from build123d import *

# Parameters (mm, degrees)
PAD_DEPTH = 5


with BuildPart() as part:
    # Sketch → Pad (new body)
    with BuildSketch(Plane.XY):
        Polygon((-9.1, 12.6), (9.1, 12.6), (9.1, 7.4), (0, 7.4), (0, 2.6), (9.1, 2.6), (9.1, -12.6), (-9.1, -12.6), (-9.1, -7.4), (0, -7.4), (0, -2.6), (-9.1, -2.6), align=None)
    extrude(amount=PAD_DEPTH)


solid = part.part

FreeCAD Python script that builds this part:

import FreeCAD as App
import Part
import Sketcher


def add_polygon(sketch, points):
    """Adds a closed chain of lines whose ends are joined by coincident constraints."""
    first, n = sketch.GeometryCount, len(points)
    for a, b in zip(points, points[1:] + points[:1]):
        sketch.addGeometry(Part.LineSegment(App.Vector(*a, 0), App.Vector(*b, 0)), False)
    for i in range(n):
        sketch.addConstraint(Sketcher.Constraint("Coincident", first + i, 2, first + (i + 1) % n, 1))

doc = App.newDocument("Part")
body = doc.addObject("PartDesign::Body", "Body")

sketch1 = body.newObject("Sketcher::SketchObject", "Sketch")
sketch1.AttachmentSupport = (doc.getObject("XY_Plane"), [""])
sketch1.MapMode = "FlatFace"
add_polygon(sketch1, [(9.1, 12.6), (-9.1, 12.6), (-9.1, -2.6), (0, -2.6), (0, -7.4), (-9.1, -7.4), (-9.1, -12.6), (9.1, -12.6), (9.1, 2.6), (0, 2.6), (0, 7.4), (9.1, 7.4)])
sketch1.addConstraint(Sketcher.Constraint("Horizontal", 0))
sketch1.addConstraint(Sketcher.Constraint("Vertical", 1))
sketch1.addConstraint(Sketcher.Constraint("Horizontal", 2))
sketch1.addConstraint(Sketcher.Constraint("Vertical", 3))
sketch1.addConstraint(Sketcher.Constraint("Horizontal", 4))
sketch1.addConstraint(Sketcher.Constraint("Vertical", 5))
sketch1.addConstraint(Sketcher.Constraint("Horizontal", 6))
sketch1.addConstraint(Sketcher.Constraint("Vertical", 7))
sketch1.addConstraint(Sketcher.Constraint("Horizontal", 8))
sketch1.addConstraint(Sketcher.Constraint("Vertical", 9))
sketch1.addConstraint(Sketcher.Constraint("Horizontal", 10))
sketch1.addConstraint(Sketcher.Constraint("Vertical", 11))
sketch1.addConstraint(Sketcher.Constraint("Symmetric", 0, 2, 6, 2, -1, 1))
sketch1.addConstraint(Sketcher.Constraint("Symmetric", 2, 2, 8, 2, -1, 1))
sketch1.addConstraint(Sketcher.Constraint("Symmetric", 4, 2, 10, 2, -1, 1))
sketch1.addConstraint(Sketcher.Constraint("PointOnObject", 2, 2, -2))
sketch1.addConstraint(Sketcher.Constraint("Vertical", 1, 2, 4, 2))
sketch1.addConstraint(Sketcher.Constraint("DistanceX", 0, 2, 0, 1, 18.2))
sketch1.addConstraint(Sketcher.Constraint("DistanceY", 1, 2, 1, 1, 15.2))
sketch1.addConstraint(Sketcher.Constraint("DistanceY", 3, 2, 3, 1, 4.8))
sketch1.addConstraint(Sketcher.Constraint("DistanceY", 5, 2, 5, 1, 5.2))
pad1 = body.newObject("PartDesign::Pad", "Pad")
pad1.Profile = sketch1
pad1.Length = 5

doc.recompute()
